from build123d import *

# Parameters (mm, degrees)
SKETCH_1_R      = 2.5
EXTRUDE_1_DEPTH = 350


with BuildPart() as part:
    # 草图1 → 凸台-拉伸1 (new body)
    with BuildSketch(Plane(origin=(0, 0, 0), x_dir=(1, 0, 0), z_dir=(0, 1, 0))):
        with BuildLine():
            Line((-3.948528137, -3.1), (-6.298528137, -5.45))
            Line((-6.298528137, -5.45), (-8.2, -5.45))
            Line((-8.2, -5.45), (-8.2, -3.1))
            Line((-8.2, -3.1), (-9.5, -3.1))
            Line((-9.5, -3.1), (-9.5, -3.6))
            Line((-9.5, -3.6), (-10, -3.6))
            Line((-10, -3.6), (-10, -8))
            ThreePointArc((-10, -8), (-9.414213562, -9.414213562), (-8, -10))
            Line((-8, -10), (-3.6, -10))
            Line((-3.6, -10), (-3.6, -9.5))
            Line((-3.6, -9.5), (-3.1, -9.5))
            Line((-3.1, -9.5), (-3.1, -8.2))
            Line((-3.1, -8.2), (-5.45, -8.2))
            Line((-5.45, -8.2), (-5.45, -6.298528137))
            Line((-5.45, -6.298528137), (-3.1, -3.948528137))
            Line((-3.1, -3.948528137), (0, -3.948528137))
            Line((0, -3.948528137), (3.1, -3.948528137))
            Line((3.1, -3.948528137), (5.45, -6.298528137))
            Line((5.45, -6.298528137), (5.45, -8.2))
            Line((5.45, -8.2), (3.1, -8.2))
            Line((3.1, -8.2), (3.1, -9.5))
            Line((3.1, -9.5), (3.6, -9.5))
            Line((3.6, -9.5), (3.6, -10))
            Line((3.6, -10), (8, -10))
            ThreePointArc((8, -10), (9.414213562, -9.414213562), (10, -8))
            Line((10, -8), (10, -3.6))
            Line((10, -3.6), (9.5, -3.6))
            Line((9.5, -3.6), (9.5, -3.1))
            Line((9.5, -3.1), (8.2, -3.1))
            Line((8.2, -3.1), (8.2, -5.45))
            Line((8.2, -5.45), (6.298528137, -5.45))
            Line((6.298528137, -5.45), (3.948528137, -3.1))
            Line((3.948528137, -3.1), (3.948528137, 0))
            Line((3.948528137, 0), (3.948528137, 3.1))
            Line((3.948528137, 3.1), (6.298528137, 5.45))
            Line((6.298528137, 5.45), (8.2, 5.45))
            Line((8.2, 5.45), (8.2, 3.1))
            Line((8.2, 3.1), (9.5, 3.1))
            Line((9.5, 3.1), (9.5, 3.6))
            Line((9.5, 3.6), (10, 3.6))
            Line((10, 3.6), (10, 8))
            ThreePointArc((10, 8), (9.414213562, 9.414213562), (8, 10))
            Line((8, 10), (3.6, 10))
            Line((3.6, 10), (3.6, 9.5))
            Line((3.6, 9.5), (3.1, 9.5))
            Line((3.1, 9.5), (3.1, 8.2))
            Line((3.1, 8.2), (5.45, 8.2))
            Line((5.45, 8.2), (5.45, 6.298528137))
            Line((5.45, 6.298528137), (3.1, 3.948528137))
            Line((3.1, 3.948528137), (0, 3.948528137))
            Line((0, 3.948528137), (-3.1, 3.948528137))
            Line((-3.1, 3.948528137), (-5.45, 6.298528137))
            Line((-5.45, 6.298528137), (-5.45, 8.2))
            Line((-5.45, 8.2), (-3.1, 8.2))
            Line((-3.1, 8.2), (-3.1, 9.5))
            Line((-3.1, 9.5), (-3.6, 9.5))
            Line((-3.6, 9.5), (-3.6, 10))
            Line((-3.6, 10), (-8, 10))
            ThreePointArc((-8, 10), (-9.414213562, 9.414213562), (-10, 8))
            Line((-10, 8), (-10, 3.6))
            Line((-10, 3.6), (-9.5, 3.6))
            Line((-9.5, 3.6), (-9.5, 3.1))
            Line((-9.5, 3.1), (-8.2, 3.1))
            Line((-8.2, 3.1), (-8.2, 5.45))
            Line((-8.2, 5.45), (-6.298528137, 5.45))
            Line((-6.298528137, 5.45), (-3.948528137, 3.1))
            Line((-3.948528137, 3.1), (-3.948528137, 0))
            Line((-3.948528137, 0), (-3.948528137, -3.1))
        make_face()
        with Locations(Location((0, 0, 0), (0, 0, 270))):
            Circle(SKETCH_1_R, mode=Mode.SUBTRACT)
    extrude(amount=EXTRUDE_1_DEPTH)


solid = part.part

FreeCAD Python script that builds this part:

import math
import FreeCAD as App
import Part
import Sketcher

doc = App.newDocument("Part")
body = doc.addObject("PartDesign::Body", "Body")

# Sketch on XZ plane
sketch1 = doc.addObject("Sketcher::SketchObject", "Sketch")
body.addObject(sketch1)
sketch1.AttachmentSupport = (doc.XZ_Plane, [""])
sketch1.MapMode = "FlatFace"
sketch1.addGeometry([
    Part.LineSegment(App.Vector(-3.9, 3.1, 0), App.Vector(-6.3, 5.5, 0)),  # 0
    Part.LineSegment(App.Vector(-6.3, 5.5, 0), App.Vector(-8.2, 5.5, 0)),  # 1
    Part.LineSegment(App.Vector(-8.2, 5.5, 0), App.Vector(-8.2, 3.1, 0)),  # 2
    Part.LineSegment(App.Vector(-8.2, 3.1, 0), App.Vector(-9.5, 3.1, 0)),  # 3
    Part.LineSegment(App.Vector(-9.5, 3.1, 0), App.Vector(-9.5, 3.6, 0)),  # 4
    Part.LineSegment(App.Vector(-9.5, 3.6, 0), App.Vector(-10, 3.6, 0)),  # 5
    Part.LineSegment(App.Vector(-10, 3.6, 0), App.Vector(-10, 8, 0)),  # 6
    Part.ArcOfCircle(Part.Circle(App.Vector(-8, 8, 0), App.Vector(0, 0, 1), 2), math.radians(90), math.radians(180)),  # 7
    Part.LineSegment(App.Vector(-8, 10, 0), App.Vector(-3.6, 10, 0)),  # 8
    Part.LineSegment(App.Vector(-3.6, 10, 0), App.Vector(-3.6, 9.5, 0)),  # 9
    Part.LineSegment(App.Vector(-3.6, 9.5, 0), App.Vector(-3.1, 9.5, 0)),  # 10
    Part.LineSegment(App.Vector(-3.1, 9.5, 0), App.Vector(-3.1, 8.2, 0)),  # 11
    Part.LineSegment(App.Vector(-3.1, 8.2, 0), App.Vector(-5.5, 8.2, 0)),  # 12
    Part.LineSegment(App.Vector(-5.5, 8.2, 0), App.Vector(-5.5, 6.3, 0)),  # 13
    Part.LineSegment(App.Vector(-5.5, 6.3, 0), App.Vector(-3.1, 3.9, 0)),  # 14
    Part.LineSegment(App.Vector(-3.1, 3.9, 0), App.Vector(3.1, 3.9, 0)),  # 15
    Part.LineSegment(App.Vector(3.1, 3.9, 0), App.Vector(5.5, 6.3, 0)),  # 16
    Part.LineSegment(App.Vector(5.5, 6.3, 0), App.Vector(5.5, 8.2, 0)),  # 17
    Part.LineSegment(App.Vector(5.5, 8.2, 0), App.Vector(3.1, 8.2, 0)),  # 18
    Part.LineSegment(App.Vector(3.1, 8.2, 0), App.Vector(3.1, 9.5, 0)),  # 19
    Part.LineSegment(App.Vector(3.1, 9.5, 0), App.Vector(3.6, 9.5, 0)),  # 20
    Part.LineSegment(App.Vector(3.6, 9.5, 0), App.Vector(3.6, 10, 0)),  # 21
    Part.LineSegment(App.Vector(3.6, 10, 0), App.Vector(8, 10, 0)),  # 22
    Part.ArcOfCircle(Part.Circle(App.Vector(8, 8, 0), App.Vector(0, 0, 1), 2), math.radians(0), math.radians(90)),  # 23
    Part.LineSegment(App.Vector(10, 8, 0), App.Vector(10, 3.6, 0)),  # 24
    Part.LineSegment(App.Vector(10, 3.6, 0), App.Vector(9.5, 3.6, 0)),  # 25
    Part.LineSegment(App.Vector(9.5, 3.6, 0), App.Vector(9.5, 3.1, 0)),  # 26
    Part.LineSegment(App.Vector(9.5, 3.1, 0), App.Vector(8.2, 3.1, 0)),  # 27
    Part.LineSegment(App.Vector(8.2, 3.1, 0), App.Vector(8.2, 5.5, 0)),  # 28
    Part.LineSegment(App.Vector(8.2, 5.5, 0), App.Vector(6.3, 5.5, 0)),  # 29
    Part.LineSegment(App.Vector(6.3, 5.5, 0), App.Vector(3.9, 3.1, 0)),  # 30
    Part.LineSegment(App.Vector(3.9, 3.1, 0), App.Vector(3.9, -3.1, 0)),  # 31
    Part.LineSegment(App.Vector(3.9, -3.1, 0), App.Vector(6.3, -5.5, 0)),  # 32
    Part.LineSegment(App.Vector(6.3, -5.5, 0), App.Vector(8.2, -5.5, 0)),  # 33
    Part.LineSegment(App.Vector(8.2, -5.5, 0), App.Vector(8.2, -3.1, 0)),  # 34
    Part.LineSegment(App.Vector(8.2, -3.1, 0), App.Vector(9.5, -3.1, 0)),  # 35
    Part.LineSegment(App.Vector(9.5, -3.1, 0), App.Vector(9.5, -3.6, 0)),  # 36
    Part.LineSegment(App.Vector(9.5, -3.6, 0), App.Vector(10, -3.6, 0)),  # 37
    Part.LineSegment(App.Vector(10, -3.6, 0), App.Vector(10, -8, 0)),  # 38
    Part.ArcOfCircle(Part.Circle(App.Vector(8, -8, 0), App.Vector(0, 0, 1), 2), math.radians(-90), math.radians(0)),  # 39
    Part.LineSegment(App.Vector(8, -10, 0), App.Vector(3.6, -10, 0)),  # 40
    Part.LineSegment(App.Vector(3.6, -10, 0), App.Vector(3.6, -9.5, 0)),  # 41
    Part.LineSegment(App.Vector(3.6, -9.5, 0), App.Vector(3.1, -9.5, 0)),  # 42
    Part.LineSegment(App.Vector(3.1, -9.5, 0), App.Vector(3.1, -8.2, 0)),  # 43
    Part.LineSegment(App.Vector(3.1, -8.2, 0), App.Vector(5.5, -8.2, 0)),  # 44
    Part.LineSegment(App.Vector(5.5, -8.2, 0), App.Vector(5.5, -6.3, 0)),  # 45
    Part.LineSegment(App.Vector(5.5, -6.3, 0), App.Vector(3.1, -3.9, 0)),  # 46
    Part.LineSegment(App.Vector(3.1, -3.9, 0), App.Vector(-3.1, -3.9, 0)),  # 47
    Part.LineSegment(App.Vector(-3.1, -3.9, 0), App.Vector(-5.5, -6.3, 0)),  # 48
    Part.LineSegment(App.Vector(-5.5, -6.3, 0), App.Vector(-5.5, -8.2, 0)),  # 49
    Part.LineSegment(App.Vector(-5.5, -8.2, 0), App.Vector(-3.1, -8.2, 0)),  # 50
    Part.LineSegment(App.Vector(-3.1, -8.2, 0), App.Vector(-3.1, -9.5, 0)),  # 51
    Part.LineSegment(App.Vector(-3.1, -9.5, 0), App.Vector(-3.6, -9.5, 0)),  # 52
    Part.LineSegment(App.Vector(-3.6, -9.5, 0), App.Vector(-3.6, -10, 0)),  # 53
    Part.LineSegment(App.Vector(-3.6, -10, 0), App.Vector(-8, -10, 0)),  # 54
    Part.ArcOfCircle(Part.Circle(App.Vector(-8, -8, 0), App.Vector(0, 0, 1), 2), math.radians(-180), math.radians(-90)),  # 55
    Part.LineSegment(App.Vector(-10, -8, 0), App.Vector(-10, -3.6, 0)),  # 56
    Part.LineSegment(App.Vector(-10, -3.6, 0), App.Vector(-9.5, -3.6, 0)),  # 57
    Part.LineSegment(App.Vector(-9.5, -3.6, 0), App.Vector(-9.5, -3.1, 0)),  # 58
    Part.LineSegment(App.Vector(-9.5, -3.1, 0), App.Vector(-8.2, -3.1, 0)),  # 59
    Part.LineSegment(App.Vector(-8.2, -3.1, 0), App.Vector(-8.2, -5.5, 0)),  # 60
    Part.LineSegment(App.Vector(-8.2, -5.5, 0), App.Vector(-6.3, -5.5, 0)),  # 61
    Part.LineSegment(App.Vector(-6.3, -5.5, 0), App.Vector(-3.9, -3.1, 0)),  # 62
    Part.LineSegment(App.Vector(-3.9, -3.1, 0), App.Vector(-3.9, 3.1, 0)),  # 63
    Part.Circle(App.Vector(0, 0, 0), App.Vector(0, 0, 1), 2.5),  # 64
], False)
sketch1.addConstraint([
    Sketcher.Constraint("Coincident", 0, 2, 1, 1),
    Sketcher.Constraint("Coincident", 1, 2, 2, 1),
    Sketcher.Constraint("Coincident", 2, 2, 3, 1),
    Sketcher.Constraint("Coincident", 3, 2, 4, 1),
    Sketcher.Constraint("Coincident", 4, 2, 5, 1),
    Sketcher.Constraint("Coincident", 5, 2, 6, 1),
    Sketcher.Constraint("Tangent", 6, 2, 7, 2),
    Sketcher.Constraint("Tangent", 7, 1, 8, 1),
    Sketcher.Constraint("Coincident", 8, 2, 9, 1),
    Sketcher.Constraint("Coincident", 9, 2, 10, 1),
    Sketcher.Constraint("Coincident", 10, 2, 11, 1),
    Sketcher.Constraint("Coincident", 11, 2, 12, 1),
    Sketcher.Constraint("Coincident", 12, 2, 13, 1),
    Sketcher.Constraint("Coincident", 13, 2, 14, 1),
    Sketcher.Constraint("Coincident", 14, 2, 15, 1),
    Sketcher.Constraint("Coincident", 15, 2, 16, 1),
    Sketcher.Constraint("Coincident", 16, 2, 17, 1),
    Sketcher.Constraint("Coincident", 17, 2, 18, 1),
    Sketcher.Constraint("Coincident", 18, 2, 19, 1),
    Sketcher.Constraint("Coincident", 19, 2, 20, 1),
    Sketcher.Constraint("Coincident", 20, 2, 21, 1),
    Sketcher.Constraint("Coincident", 21, 2, 22, 1),
    Sketcher.Constraint("Tangent", 22, 2, 23, 2),
    Sketcher.Constraint("Tangent", 23, 1, 24, 1),
    Sketcher.Constraint("Coincident", 24, 2, 25, 1),
    Sketcher.Constraint("Coincident", 25, 2, 26, 1),
    Sketcher.Constraint("Coincident", 26, 2, 27, 1),
    Sketcher.Constraint("Coincident", 27, 2, 28, 1),
    Sketcher.Constraint("Coincident", 28, 2, 29, 1),
    Sketcher.Constraint("Coincident", 29, 2, 30, 1),
    Sketcher.Constraint("Coincident", 30, 2, 31, 1),
    Sketcher.Constraint("Coincident", 31, 2, 32, 1),
    Sketcher.Constraint("Coincident", 32, 2, 33, 1),
    Sketcher.Constraint("Coincident", 33, 2, 34, 1),
    Sketcher.Constraint("Coincident", 34, 2, 35, 1),
    Sketcher.Constraint("Coincident", 35, 2, 36, 1),
    Sketcher.Constraint("Coincident", 36, 2, 37, 1),
    Sketcher.Constraint("Coincident", 37, 2, 38, 1),
    Sketcher.Constraint("Tangent", 38, 2, 39, 2),
    Sketcher.Constraint("Tangent", 39, 1, 40, 1),
    Sketcher.Constraint("Coincident", 40, 2, 41, 1),
    Sketcher.Constraint("Coincident", 41, 2, 42, 1),
    Sketcher.Constraint("Coincident", 42, 2, 43, 1),
    Sketcher.Constraint("Coincident", 43, 2, 44, 1),
    Sketcher.Constraint("Coincident", 44, 2, 45, 1),
    Sketcher.Constraint("Coincident", 45, 2, 46, 1),
    Sketcher.Constraint("Coincident", 46, 2, 47, 1),
    Sketcher.Constraint("Coincident", 47, 2, 48, 1),
    Sketcher.Constraint("Coincident", 48, 2, 49, 1),
    Sketcher.Constraint("Coincident", 49, 2, 50, 1),
    Sketcher.Constraint("Coincident", 50, 2, 51, 1),
    Sketcher.Constraint("Coincident", 51, 2, 52, 1),
    Sketcher.Constraint("Coincident", 52, 2, 53, 1),
    Sketcher.Constraint("Coincident", 53, 2, 54, 1),
    Sketcher.Constraint("Tangent", 54, 2, 55, 2),
    Sketcher.Constraint("Tangent", 55, 1, 56, 1),
    Sketcher.Constraint("Coincident", 56, 2, 57, 1),
    Sketcher.Constraint("Coincident", 57, 2, 58, 1),
    Sketcher.Constraint("Coincident", 58, 2, 59, 1),
    Sketcher.Constraint("Coincident", 59, 2, 60, 1),
    Sketcher.Constraint("Coincident", 60, 2, 61, 1),
    Sketcher.Constraint("Coincident", 61, 2, 62, 1),
    Sketcher.Constraint("Coincident", 62, 2, 63, 1),
    Sketcher.Constraint("Coincident", 63, 2, 0, 1),
    Sketcher.Constraint("Horizontal", 1),
    Sketcher.Constraint("Vertical", 2),
    Sketcher.Constraint("Horizontal", 3),
    Sketcher.Constraint("Vertical", 4),
    Sketcher.Constraint("Horizontal", 5),
    Sketcher.Constraint("Vertical", 6),
    Sketcher.Constraint("Horizontal", 8),
    Sketcher.Constraint("Vertical", 9),
    Sketcher.Constraint("Horizontal", 10),
    Sketcher.Constraint("Vertical", 11),
    Sketcher.Constraint("Horizontal", 12),
    Sketcher.Constraint("Vertical", 13),
    Sketcher.Constraint("Horizontal", 15),
    Sketcher.Constraint("Vertical", 17),
    Sketcher.Constraint("Horizontal", 18),
    Sketcher.Constraint("Vertical", 19),
    Sketcher.Constraint("Horizontal", 20),
    Sketcher.Constraint("Vertical", 21),
    Sketcher.Constraint("Horizontal", 22),
    Sketcher.Constraint("Vertical", 24),
    Sketcher.Constraint("Horizontal", 25),
    Sketcher.Constraint("Vertical", 26),
    Sketcher.Constraint("Horizontal", 27),
    Sketcher.Constraint("Vertical", 28),
    Sketcher.Constraint("Horizontal", 29),
    Sketcher.Constraint("Vertical", 31),
    Sketcher.Constraint("Horizontal", 33),
    Sketcher.Constraint("Vertical", 34),
    Sketcher.Constraint("Horizontal", 35),
    Sketcher.Constraint("Vertical", 36),
    Sketcher.Constraint("Horizontal", 37),
    Sketcher.Constraint("Vertical", 38),
    Sketcher.Constraint("Horizontal", 40),
    Sketcher.Constraint("Vertical", 41),
    Sketcher.Constraint("Horizontal", 42),
    Sketcher.Constraint("Vertical", 43),
    Sketcher.Constraint("Horizontal", 44),
    Sketcher.Constraint("Vertical", 45),
    Sketcher.Constraint("Horizontal", 47),
    Sketcher.Constraint("Vertical", 49),
    Sketcher.Constraint("Horizontal", 50),
    Sketcher.Constraint("Vertical", 51),
    Sketcher.Constraint("Horizontal", 52),
    Sketcher.Constraint("Vertical", 53),
    Sketcher.Constraint("Horizontal", 54),
    Sketcher.Constraint("Vertical", 56),
    Sketcher.Constraint("Horizontal", 57),
    Sketcher.Constraint("Vertical", 58),
    Sketcher.Constraint("Horizontal", 59),
    Sketcher.Constraint("Vertical", 60),
    Sketcher.Constraint("Horizontal", 61),
    Sketcher.Constraint("Vertical", 63),
    Sketcher.Constraint("Coincident", 64, 3, -1, 1),
    Sketcher.Constraint("Equal", 7, 23),
    Sketcher.Constraint("Equal", 23, 39),
    Sketcher.Constraint("Equal", 39, 55),
    Sketcher.Constraint("Symmetric", 7, 3, 39, 3, -1, 1),
    Sketcher.Constraint("Symmetric", 23, 3, 55, 3, -1, 1),
    Sketcher.Constraint("Symmetric", 0, 2, 32, 2, -1, 1),
    Sketcher.Constraint("Symmetric", 2, 2, 34, 2, -1, 1),
    Sketcher.Constraint("Symmetric", 4, 2, 36, 2, -1, 1),
    Sketcher.Constraint("Symmetric", 9, 2, 41, 2, -1, 1),
    Sketcher.Constraint("Symmetric", 11, 2, 43, 2, -1, 1),
    Sketcher.Constraint("Symmetric", 13, 2, 45, 2, -1, 1),
    Sketcher.Constraint("Symmetric", 14, 2, 46, 2, -1, 1),
    Sketcher.Constraint("Symmetric", 16, 2, 48, 2, -1, 1),
    Sketcher.Constraint("Symmetric", 18, 2, 50, 2, -1, 1),
    Sketcher.Constraint("Symmetric", 20, 2, 52, 2, -1, 1),
    Sketcher.Constraint("Symmetric", 25, 2, 57, 2, -1, 1),
    Sketcher.Constraint("Symmetric", 27, 2, 59, 2, -1, 1),
    Sketcher.Constraint("Symmetric", 29, 2, 61, 2, -1, 1),
    Sketcher.Constraint("Symmetric", 30, 2, 62, 2, -1, 1),
    Sketcher.Constraint("Symmetric", 7, 3, 23, 3, -2),
    Sketcher.Constraint("Symmetric", 13, 2, 16, 2, -2),
    Sketcher.Constraint("Symmetric", 11, 2, 18, 2, -2),
    Sketcher.Constraint("Symmetric", 9, 2, 20, 2, -2),
    Sketcher.Constraint("Symmetric", 4, 2, 25, 2, -2),
    Sketcher.Constraint("Symmetric", 2, 2, 27, 2, -2),
    Sketcher.Constraint("Symmetric", 0, 2, 29, 2, -2),
    Sketcher.Constraint("Parallel", 0, 14),
    Sketcher.Constraint("Perpendicular", 14, 16),
    Sketcher.Constraint("Parallel", 16, 30),
    Sketcher.Constraint("Perpendicular", 30, 32),
    Sketcher.Constraint("Perpendicular", 46, 48),
    Sketcher.Constraint("Horizontal", 27, 2, 30, 2),
    Sketcher.Constraint("Horizontal", 31, 2, 34, 2),
    Sketcher.Constraint("Vertical", 11, 2, 14, 2),
    Sketcher.Constraint("Equal", 5, 10),
    Sketcher.Constraint("Equal", 50, 2),
    Sketcher.Constraint("Equal", 57, 4),
    Sketcher.Constraint("Equal", 54, 6),
    Sketcher.Constraint("Equal", 4, 9),
    Sketcher.Constraint("Equal", 59, 11),
    Sketcher.Constraint("Equal", 61, 13),
    Sketcher.Constraint("Equal", 47, 31),
    Sketcher.Constraint("Diameter", 64, 5.0),
    Sketcher.Constraint("Radius", 7, 2.0),
    Sketcher.Constraint("DistanceX", 3, 2, 3, 1, 1.3),
    Sketcher.Constraint("DistanceX", 5, 2, 5, 1, 0.5),
    Sketcher.Constraint("DistanceX", 8, 1, 8, 2, 4.4),
    Sketcher.Constraint("DistanceX", 15, 1, 15, 2, 6.2),
    Sketcher.Constraint("DistanceX", 12, 2, 12, 1, 2.35),
    Sketcher.Constraint("DistanceX", 1, 2, 1, 1, 1.901472),
])
pad1 = doc.addObject("PartDesign::Pad", "Pad")
body.addObject(pad1)
pad1.Profile = sketch1
pad1.Length = 350
pad1.Reversed = True

doc.recompute()
